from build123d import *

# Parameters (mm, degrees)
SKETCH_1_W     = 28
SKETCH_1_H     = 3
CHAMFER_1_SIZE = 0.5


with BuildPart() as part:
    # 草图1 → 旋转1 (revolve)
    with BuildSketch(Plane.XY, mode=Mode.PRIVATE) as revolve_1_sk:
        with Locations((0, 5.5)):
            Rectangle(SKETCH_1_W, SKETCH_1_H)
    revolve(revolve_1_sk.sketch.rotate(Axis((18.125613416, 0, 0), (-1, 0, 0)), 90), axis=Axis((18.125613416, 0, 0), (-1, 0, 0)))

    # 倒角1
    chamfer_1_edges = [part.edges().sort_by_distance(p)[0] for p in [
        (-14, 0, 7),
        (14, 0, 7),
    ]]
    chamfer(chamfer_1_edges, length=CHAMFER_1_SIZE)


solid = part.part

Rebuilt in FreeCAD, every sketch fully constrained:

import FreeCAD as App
import Part
import Sketcher
Q = App.Units.Quantity


def edges_at(feature, points):
    """Names of the edges that pass closest to the given points."""
    edges = feature.Shape.Edges
    near = lambda p: min(range(len(edges)), key=lambda i: edges[i].distToShape(Part.Vertex(*p))[0])
    return sorted({f"Edge{near(p) + 1}" for p in points})

doc = App.newDocument("Part")
body = doc.addObject("PartDesign::Body", "Body")

# Sketch on XY plane
sketch1 = body.newObject("Sketcher::SketchObject", "Sketch")
sketch1.AttachmentSupport = (doc.getObject("XY_Plane"), [""])
sketch1.MapMode = "FlatFace"
sketch1.addGeometry(Part.LineSegment(App.Vector(-14, 7, 0), App.Vector(-14, 4, 0)), False)
sketch1.addGeometry(Part.LineSegment(App.Vector(-14, 4, 0), App.Vector(14, 4, 0)), False)
sketch1.addGeometry(Part.LineSegment(App.Vector(14, 4, 0), App.Vector(14, 7, 0)), False)
sketch1.addGeometry(Part.LineSegment(App.Vector(14, 7, 0), App.Vector(-14, 7, 0)), False)
sketch1.addConstraint(Sketcher.Constraint("Coincident", 0, 2, 1, 1))
sketch1.addConstraint(Sketcher.Constraint("Coincident", 1, 2, 2, 1))
sketch1.addConstraint(Sketcher.Constraint("Coincident", 2, 2, 3, 1))
sketch1.addConstraint(Sketcher.Constraint("Coincident", 3, 2, 0, 1))
sketch1.addConstraint(Sketcher.Constraint("Vertical", 0))
sketch1.addConstraint(Sketcher.Constraint("Horizontal", 1))
sketch1.addConstraint(Sketcher.Constraint("Vertical", 2))
sketch1.addConstraint(Sketcher.Constraint("Horizontal", 3))
sketch1.addConstraint(Sketcher.Constraint("DistanceX", 1, 1, 1, 2, Q("28 mm")))
sketch1.addConstraint(Sketcher.Constraint("DistanceY", 0, 2, 0, 1, Q("3 mm")))
sketch1.addConstraint(Sketcher.Constraint("DistanceX", 0, 2, -1, 1, Q("14 mm")))
sketch1.addConstraint(Sketcher.Constraint("DistanceY", -1, 1, 0, 2, Q("4 mm")))
revolution = body.newObject("PartDesign::Revolution", "Revolution")
revolution.Profile = sketch1
revolution.ReferenceAxis = (sketch1, ["H_Axis"])
revolution.Angle = 360
doc.recompute()

chamfer = body.newObject("PartDesign::Chamfer", "Chamfer")
chamfer.Base = (revolution, edges_at(revolution, [(-14, 0, 7), (14, 0, 7)]))
chamfer.Size = 0.5

doc.recompute()
